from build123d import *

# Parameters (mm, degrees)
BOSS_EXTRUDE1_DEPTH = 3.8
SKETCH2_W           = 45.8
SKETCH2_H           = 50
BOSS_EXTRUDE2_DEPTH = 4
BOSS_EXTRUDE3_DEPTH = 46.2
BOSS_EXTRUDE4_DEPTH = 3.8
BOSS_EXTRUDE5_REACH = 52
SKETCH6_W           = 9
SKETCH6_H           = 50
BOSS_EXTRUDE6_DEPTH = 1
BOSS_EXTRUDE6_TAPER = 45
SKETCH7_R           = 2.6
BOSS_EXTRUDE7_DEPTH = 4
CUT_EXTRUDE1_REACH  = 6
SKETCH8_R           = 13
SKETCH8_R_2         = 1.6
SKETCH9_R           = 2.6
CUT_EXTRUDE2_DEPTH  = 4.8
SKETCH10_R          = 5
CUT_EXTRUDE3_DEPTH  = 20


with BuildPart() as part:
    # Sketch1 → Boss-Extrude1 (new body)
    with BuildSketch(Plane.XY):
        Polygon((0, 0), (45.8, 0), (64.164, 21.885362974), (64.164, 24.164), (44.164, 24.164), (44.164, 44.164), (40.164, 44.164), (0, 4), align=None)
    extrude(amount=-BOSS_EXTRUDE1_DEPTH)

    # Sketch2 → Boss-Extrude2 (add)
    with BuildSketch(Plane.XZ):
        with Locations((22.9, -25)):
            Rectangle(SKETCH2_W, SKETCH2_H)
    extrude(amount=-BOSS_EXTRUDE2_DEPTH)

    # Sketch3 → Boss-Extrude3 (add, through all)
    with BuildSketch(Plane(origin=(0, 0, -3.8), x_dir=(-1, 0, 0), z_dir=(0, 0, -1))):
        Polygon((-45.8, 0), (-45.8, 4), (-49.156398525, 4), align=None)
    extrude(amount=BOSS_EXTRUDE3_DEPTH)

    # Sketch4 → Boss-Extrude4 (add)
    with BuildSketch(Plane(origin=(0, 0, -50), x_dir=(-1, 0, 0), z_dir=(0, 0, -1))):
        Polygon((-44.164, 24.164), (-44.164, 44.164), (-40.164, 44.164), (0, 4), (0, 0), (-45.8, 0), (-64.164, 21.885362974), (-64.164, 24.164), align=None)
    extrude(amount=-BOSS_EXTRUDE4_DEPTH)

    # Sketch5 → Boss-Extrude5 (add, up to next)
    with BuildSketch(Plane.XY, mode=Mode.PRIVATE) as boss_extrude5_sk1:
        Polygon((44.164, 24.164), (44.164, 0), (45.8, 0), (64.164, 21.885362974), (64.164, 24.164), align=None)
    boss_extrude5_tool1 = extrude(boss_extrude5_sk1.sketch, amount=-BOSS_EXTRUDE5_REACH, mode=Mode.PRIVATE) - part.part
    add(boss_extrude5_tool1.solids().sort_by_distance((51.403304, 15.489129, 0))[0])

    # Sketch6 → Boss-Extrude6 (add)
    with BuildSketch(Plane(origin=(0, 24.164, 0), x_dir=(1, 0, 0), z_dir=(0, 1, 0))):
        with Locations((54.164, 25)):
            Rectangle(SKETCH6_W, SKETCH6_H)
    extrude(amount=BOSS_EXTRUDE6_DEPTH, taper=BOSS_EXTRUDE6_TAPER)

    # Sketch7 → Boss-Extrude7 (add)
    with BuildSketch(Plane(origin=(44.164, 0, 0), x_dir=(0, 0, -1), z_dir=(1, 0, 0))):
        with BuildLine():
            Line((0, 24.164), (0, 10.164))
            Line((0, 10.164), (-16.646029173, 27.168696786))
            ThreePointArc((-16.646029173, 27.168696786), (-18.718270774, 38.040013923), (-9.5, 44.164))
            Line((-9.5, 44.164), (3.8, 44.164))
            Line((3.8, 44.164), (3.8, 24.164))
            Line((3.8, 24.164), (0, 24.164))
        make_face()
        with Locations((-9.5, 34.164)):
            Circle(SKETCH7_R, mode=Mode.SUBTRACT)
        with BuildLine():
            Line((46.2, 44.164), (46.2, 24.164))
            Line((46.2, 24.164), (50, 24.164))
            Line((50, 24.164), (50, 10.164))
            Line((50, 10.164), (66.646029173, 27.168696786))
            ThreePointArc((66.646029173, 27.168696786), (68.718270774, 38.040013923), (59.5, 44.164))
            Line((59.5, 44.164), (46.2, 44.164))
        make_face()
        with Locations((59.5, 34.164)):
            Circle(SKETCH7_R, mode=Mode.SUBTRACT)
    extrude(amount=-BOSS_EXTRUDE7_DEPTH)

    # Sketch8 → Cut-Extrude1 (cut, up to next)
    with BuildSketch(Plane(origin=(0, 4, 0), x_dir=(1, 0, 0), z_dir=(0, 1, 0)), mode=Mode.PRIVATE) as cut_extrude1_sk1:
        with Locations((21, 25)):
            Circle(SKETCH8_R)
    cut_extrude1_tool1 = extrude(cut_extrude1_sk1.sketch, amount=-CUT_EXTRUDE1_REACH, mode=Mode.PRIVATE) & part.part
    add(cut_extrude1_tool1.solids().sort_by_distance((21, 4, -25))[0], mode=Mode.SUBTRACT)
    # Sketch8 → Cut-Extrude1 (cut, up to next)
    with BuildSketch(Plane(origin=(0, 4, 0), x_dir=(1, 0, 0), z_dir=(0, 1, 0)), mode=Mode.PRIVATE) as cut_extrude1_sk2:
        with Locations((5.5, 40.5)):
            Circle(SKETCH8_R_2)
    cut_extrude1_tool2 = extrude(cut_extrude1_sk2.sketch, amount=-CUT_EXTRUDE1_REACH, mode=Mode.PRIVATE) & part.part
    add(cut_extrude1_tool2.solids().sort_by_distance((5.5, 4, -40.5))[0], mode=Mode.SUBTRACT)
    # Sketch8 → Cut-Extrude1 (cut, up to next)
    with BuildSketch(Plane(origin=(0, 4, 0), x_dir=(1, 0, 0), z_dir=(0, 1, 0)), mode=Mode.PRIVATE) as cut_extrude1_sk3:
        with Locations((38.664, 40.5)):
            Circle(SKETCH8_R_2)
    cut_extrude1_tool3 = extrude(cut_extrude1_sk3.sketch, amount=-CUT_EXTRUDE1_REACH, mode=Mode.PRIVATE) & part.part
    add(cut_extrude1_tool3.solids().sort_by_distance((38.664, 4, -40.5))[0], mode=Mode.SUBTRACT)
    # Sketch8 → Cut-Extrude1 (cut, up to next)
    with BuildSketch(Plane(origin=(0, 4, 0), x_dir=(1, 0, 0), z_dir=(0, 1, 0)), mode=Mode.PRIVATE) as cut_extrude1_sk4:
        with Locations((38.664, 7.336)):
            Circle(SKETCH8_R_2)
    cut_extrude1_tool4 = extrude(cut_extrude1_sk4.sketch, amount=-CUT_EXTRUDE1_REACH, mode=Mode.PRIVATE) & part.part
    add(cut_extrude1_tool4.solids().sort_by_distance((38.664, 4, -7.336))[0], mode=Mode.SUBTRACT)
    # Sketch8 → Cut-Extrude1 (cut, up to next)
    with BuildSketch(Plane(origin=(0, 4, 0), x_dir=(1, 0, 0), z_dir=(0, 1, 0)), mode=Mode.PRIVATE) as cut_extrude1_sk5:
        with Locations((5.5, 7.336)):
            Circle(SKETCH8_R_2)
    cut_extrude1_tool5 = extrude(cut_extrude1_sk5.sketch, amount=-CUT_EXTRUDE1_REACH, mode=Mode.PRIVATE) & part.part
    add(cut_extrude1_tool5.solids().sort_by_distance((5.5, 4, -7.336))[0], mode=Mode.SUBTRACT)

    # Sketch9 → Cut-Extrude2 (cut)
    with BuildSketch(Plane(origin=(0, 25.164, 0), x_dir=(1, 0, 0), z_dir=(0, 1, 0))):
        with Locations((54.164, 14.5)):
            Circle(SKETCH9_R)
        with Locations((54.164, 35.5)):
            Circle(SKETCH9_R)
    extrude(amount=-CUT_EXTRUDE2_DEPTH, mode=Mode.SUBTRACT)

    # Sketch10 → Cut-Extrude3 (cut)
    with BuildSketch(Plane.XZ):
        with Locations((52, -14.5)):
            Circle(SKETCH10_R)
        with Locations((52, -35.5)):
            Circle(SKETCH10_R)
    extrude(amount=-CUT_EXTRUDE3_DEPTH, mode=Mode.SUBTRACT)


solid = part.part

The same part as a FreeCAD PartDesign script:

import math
import FreeCAD as App
import Part
import Sketcher
from FreeCAD import Vector
Q = App.Units.Quantity


def add_polygon(sketch, points):
    """Adds a closed chain of lines whose ends are joined by coincident constraints."""
    first, n = sketch.GeometryCount, len(points)
    for a, b in zip(points, points[1:] + points[:1]):
        sketch.addGeometry(Part.LineSegment(App.Vector(*a, 0), App.Vector(*b, 0)), False)
    for i in range(n):
        sketch.addConstraint(Sketcher.Constraint("Coincident", first + i, 2, first + (i + 1) % n, 1))

doc = App.newDocument("Part")
body = doc.addObject("PartDesign::Body", "Body")

sketch1 = body.newObject("Sketcher::SketchObject", "Sketch")
sketch1.AttachmentSupport = (doc.getObject("XY_Plane"), [""])
sketch1.MapMode = "FlatFace"
add_polygon(sketch1, [(0, 0), (45.8, 0), (64.2, 21.9), (64.2, 24.2), (44.2, 24.2), (44.2, 44.2), (40.2, 44.2), (0, 4)])
sketch1.addConstraint([
    Sketcher.Constraint("Horizontal", 0),
    Sketcher.Constraint("Vertical", 2),
    Sketcher.Constraint("Horizontal", 3),
    Sketcher.Constraint("Vertical", 4),
    Sketcher.Constraint("Horizontal", 5),
    Sketcher.Constraint("Vertical", 7),
    Sketcher.Constraint("Coincident", 7, 2, -1, 1),
    Sketcher.Constraint("Equal", 3, 4),
    Sketcher.Constraint("Equal", 5, 7),
    Sketcher.Constraint("DistanceX", 3, 2, 3, 1, Q("20 mm")),
    Sketcher.Constraint("DistanceX", 5, 2, 5, 1, Q("4 mm")),
    Sketcher.Constraint("Angle", 1, Q("50 deg")),
    Sketcher.Constraint("Angle", 6, Q("-135 deg")),
    Sketcher.Constraint("DistanceX", 0, 1, 0, 2, Q("45.8 mm")),
    Sketcher.Constraint("DistanceX", -1, 1, 1, 2, Q("64.164 mm")),
])
pad1 = body.newObject("PartDesign::Pad", "Pad")
pad1.Profile = sketch1
pad1.Length = 3.8
pad1.Reversed = True

sketch2 = body.newObject("Sketcher::SketchObject", "Sketch001")
sketch2.AttachmentSupport = (doc.getObject("XZ_Plane"), [""])
sketch2.MapMode = "FlatFace"
add_polygon(sketch2, [(0, 0), (0, -50), (46, -50), (46, 0)])
sketch2.addConstraint([
    Sketcher.Constraint("Vertical", 0),
    Sketcher.Constraint("Horizontal", 1),
    Sketcher.Constraint("Vertical", 2),
    Sketcher.Constraint("Horizontal", 3),
    Sketcher.Constraint("Coincident", 3, 2, -1, 1),
    Sketcher.Constraint("DistanceY", 0, 2, 0, 1, Q("50 mm")),
    Sketcher.Constraint("DistanceX", 1, 1, 1, 2, Q("45.8 mm")),
])
pad2 = body.newObject("PartDesign::Pad", "Pad001")
pad2.Profile = sketch2
pad2.Length = 4
pad2.Reversed = True

sketch3 = body.newObject("Sketcher::SketchObject", "Sketch002")
sketch3.AttachmentSupport = (doc.getObject("XY_Plane"), [""])
sketch3.MapMode = "FlatFace"
sketch3.AttachmentOffset = App.Placement(Vector(0, 0, -3.8), App.Rotation())
add_polygon(sketch3, [(45.8, 0), (45.8, 4), (49.2, 4)])
sketch3.addConstraint([
    Sketcher.Constraint("Vertical", 0),
    Sketcher.Constraint("Horizontal", 1),
    Sketcher.Constraint("PointOnObject", 2, 2, -1),
    Sketcher.Constraint("DistanceY", 0, 1, 0, 2, Q("4 mm")),
    Sketcher.Constraint("Angle", 2, Q("-130 deg")),
    Sketcher.Constraint("DistanceX", -1, 1, 0, 2, Q("45.8 mm")),
])
pad3 = body.newObject("PartDesign::Pad", "Pad002")
pad3.Profile = sketch3
pad3.Length = 46.2
pad3.Reversed = True

sketch4 = body.newObject("Sketcher::SketchObject", "Sketch003")
sketch4.AttachmentSupport = (doc.getObject("XY_Plane"), [""])
sketch4.MapMode = "FlatFace"
sketch4.AttachmentOffset = App.Placement(Vector(0, 0, -50), App.Rotation())
add_polygon(sketch4, [(44.2, 44.2), (44.2, 24.2), (64.2, 24.2), (64.2, 21.9), (45.8, 0), (0, 0), (0, 4), (40.2, 44.2)])
sketch4.addConstraint([
    Sketcher.Constraint("Vertical", 0),
    Sketcher.Constraint("Horizontal", 1),
    Sketcher.Constraint("Vertical", 2),
    Sketcher.Constraint("Horizontal", 4),
    Sketcher.Constraint("Vertical", 5),
    Sketcher.Constraint("Horizontal", 7),
    Sketcher.Constraint("Coincident", 4, 2, -1, 1),
    Sketcher.Constraint("Equal", 1, 0),
    Sketcher.Constraint("Equal", 7, 5),
    Sketcher.Constraint("DistanceX", 1, 1, 1, 2, Q("20 mm")),
    Sketcher.Constraint("DistanceX", 7, 1, 7, 2, Q("4 mm")),
    Sketcher.Constraint("Angle", 3, Q("-130 deg")),
    Sketcher.Constraint("Angle", 6, Q("45 deg")),
    Sketcher.Constraint("DistanceX", 4, 2, 4, 1, Q("45.8 mm")),
    Sketcher.Constraint("DistanceX", -1, 1, 0, 2, Q("44.164 mm")),
])
pad4 = body.newObject("PartDesign::Pad", "Pad003")
pad4.Profile = sketch4
pad4.Length = 3.8

sketch5 = body.newObject("Sketcher::SketchObject", "Sketch004")
sketch5.AttachmentSupport = (doc.getObject("XY_Plane"), [""])
sketch5.MapMode = "FlatFace"
add_polygon(sketch5, [(44.2, 24.2), (44.2, 0), (45.8, 0), (64.2, 21.9), (64.2, 24.2)])
sketch5.addConstraint([
    Sketcher.Constraint("Vertical", 0),
    Sketcher.Constraint("Horizontal", 1),
    Sketcher.Constraint("Vertical", 3),
    Sketcher.Constraint("Horizontal", 4),
    Sketcher.Constraint("PointOnObject", 0, 2, -1),
    Sketcher.Constraint("DistanceX", 4, 2, 4, 1, Q("20 mm")),
    Sketcher.Constraint("Angle", 2, Q("50 deg")),
    Sketcher.Constraint("DistanceX", -1, 1, 1, 2, Q("45.8 mm")),
    Sketcher.Constraint("DistanceX", 1, 1, 1, 2, Q("1.636 mm")),
    Sketcher.Constraint("DistanceY", 0, 2, 0, 1, Q("24.164 mm")),
])
pad5 = body.newObject("PartDesign::Pad", "Pad004")
pad5.Profile = sketch5
pad5.Length = 46.2
pad5.Reversed = True

sketch6 = body.newObject("Sketcher::SketchObject", "Sketch005")
sketch6.AttachmentSupport = (doc.getObject("XZ_Plane"), [""])
sketch6.MapMode = "FlatFace"
sketch6.AttachmentOffset = App.Placement(Vector(0, 0, -24.164), App.Rotation())
add_polygon(sketch6, [(50, -50), (50, 0), (59, 0), (59, -50)])
sketch6.addConstraint([
    Sketcher.Constraint("Vertical", 0),
    Sketcher.Constraint("Horizontal", 1),
    Sketcher.Constraint("Vertical", 2),
    Sketcher.Constraint("Horizontal", 3),
    Sketcher.Constraint("PointOnObject", 0, 2, -1),
    Sketcher.Constraint("DistanceX", 1, 1, 1, 2, Q("9 mm")),
    Sketcher.Constraint("DistanceY", 0, 1, 0, 2, Q("50 mm")),
    Sketcher.Constraint("DistanceX", -1, 1, 0, 2, Q("49.664 mm")),
])
pad6 = body.newObject("PartDesign::Pad", "Pad005")
pad6.Profile = sketch6
pad6.Length = 1
pad6.Reversed = True
pad6.TaperAngle = -45

sketch7 = body.newObject("Sketcher::SketchObject", "Sketch006")
sketch7.AttachmentSupport = (doc.getObject("YZ_Plane"), [""])
sketch7.MapMode = "FlatFace"
sketch7.AttachmentOffset = App.Placement(Vector(0, 0, 44.164), App.Rotation())
sketch7.addGeometry([
    Part.LineSegment(Vector(10.2, 0, 0), Vector(24.2, 0, 0)),
    Part.LineSegment(Vector(24.2, 0, 0), Vector(24.2, -3.8, 0)),
    Part.LineSegment(Vector(24.2, -3.8, 0), Vector(44.2, -3.8, 0)),
    Part.LineSegment(Vector(44.2, -3.8, 0), Vector(44.2, 9.5, 0)),
    Part.ArcOfCircle(Part.Circle(Vector(34.2, 9.5, 0), Vector(0, 0, 1), 10), math.radians(0), math.radians(134)),
    Part.LineSegment(Vector(27.2, 16.6, 0), Vector(10.2, 0, 0)),
    Part.Circle(Vector(34.2, 9.5, 0), Vector(0, 0, 1), 2.6),
    Part.LineSegment(Vector(44.2, -46.2, 0), Vector(24.2, -46.2, 0)),
    Part.LineSegment(Vector(24.2, -46.2, 0), Vector(24.2, -50, 0)),
    Part.LineSegment(Vector(24.2, -50, 0), Vector(10.2, -50, 0)),
    Part.LineSegment(Vector(10.2, -50, 0), Vector(27.2, -66.6, 0)),
    Part.ArcOfCircle(Part.Circle(Vector(34.2, -59.5, 0), Vector(0, 0, 1), 10), math.radians(-134), math.radians(0)),
    Part.LineSegment(Vector(44.2, -59.5, 0), Vector(44.2, -46.2, 0)),
    Part.Circle(Vector(34.2, -59.5, 0), Vector(0, 0, 1), 2.6),
], False)
sketch7.addConstraint([
    Sketcher.Constraint("Coincident", 0, 2, 1, 1),
    Sketcher.Constraint("Coincident", 1, 2, 2, 1),
    Sketcher.Constraint("Coincident", 2, 2, 3, 1),
    Sketcher.Constraint("Tangent", 3, 2, 4, 1),
    Sketcher.Constraint("Tangent", 4, 2, 5, 1),
    Sketcher.Constraint("Coincident", 5, 2, 0, 1),
    Sketcher.Constraint("Coincident", 7, 2, 8, 1),
    Sketcher.Constraint("Coincident", 8, 2, 9, 1),
    Sketcher.Constraint("Coincident", 9, 2, 10, 1),
    Sketcher.Constraint("Tangent", 10, 2, 11, 1),
    Sketcher.Constraint("Tangent", 11, 2, 12, 1),
    Sketcher.Constraint("Coincident", 12, 2, 7, 1),
    Sketcher.Constraint("Horizontal", 0),
    Sketcher.Constraint("Vertical", 1),
    Sketcher.Constraint("Horizontal", 2),
    Sketcher.Constraint("Vertical", 3),
    Sketcher.Constraint("Horizontal", 7),
    Sketcher.Constraint("Vertical", 8),
    Sketcher.Constraint("Horizontal", 9),
    Sketcher.Constraint("Vertical", 12),
    Sketcher.Constraint("Coincident", 6, 3, 4, 3),
    Sketcher.Constraint("Coincident", 13, 3, 11, 3),
    Sketcher.Constraint("Equal", 4, 11),
    Sketcher.Constraint("Equal", 6, 13),
    Sketcher.Constraint("PointOnObject", 0, 2, -1),
    Sketcher.Constraint("Vertical", 6, 3, 11, 3),
    Sketcher.Constraint("Vertical", 1, 2, 7, 2),
    Sketcher.Constraint("Vertical", 5, 2, 9, 2),
    Sketcher.Constraint("Vertical", 4, 2, 10, 2),
    Sketcher.Constraint("Equal", 1, 8),
    Sketcher.Constraint("Radius", 4, Q("10 mm")),
    Sketcher.Constraint("Diameter", 6, Q("5.2 mm")),
    Sketcher.Constraint("DistanceX", 0, 1, 0, 2, Q("14 mm")),
    Sketcher.Constraint("DistanceX", 2, 1, 2, 2, Q("20 mm")),
    Sketcher.Constraint("DistanceY", 1, 2, 1, 1, Q("3.8 mm")),
    Sketcher.Constraint("DistanceY", 3, 1, 3, 2, Q("13.3 mm")),
    Sketcher.Constraint("DistanceY", 8, 2, -1, 1, Q("50 mm")),
    Sketcher.Constraint("DistanceX", -1, 1, 4, 3, Q("34.164 mm")),
])
pad7 = body.newObject("PartDesign::Pad", "Pad006")
pad7.Profile = sketch7
pad7.Length = 4
pad7.Reversed = True

sketch8 = body.newObject("Sketcher::SketchObject", "Sketch007")
sketch8.AttachmentSupport = (doc.getObject("XZ_Plane"), [""])
sketch8.MapMode = "FlatFace"
sketch8.AttachmentOffset = App.Placement(Vector(0, 0, -4), App.Rotation())
sketch8.addGeometry(Part.Circle(Vector(21, -25, 0), Vector(0, 0, 1), 13), False)
sketch8.addConstraint([
    Sketcher.Constraint("Diameter", 0, Q("26 mm")),
    Sketcher.Constraint("DistanceX", -1, 1, 0, 3, Q("21 mm")),
    Sketcher.Constraint("DistanceY", 0, 3, -1, 1, Q("25 mm")),
])
pocket1 = body.newObject("PartDesign::Pocket", "Pocket")
pocket1.Profile = sketch8
pocket1.Type = "UpToFirst"
pocket1.Reversed = True

sketch9 = body.newObject("Sketcher::SketchObject", "Sketch008")
sketch9.AttachmentSupport = (doc.getObject("XZ_Plane"), [""])
sketch9.MapMode = "FlatFace"
sketch9.AttachmentOffset = App.Placement(Vector(0, 0, -4), App.Rotation())
sketch9.addGeometry(Part.Circle(Vector(5.5, -40.5, 0), Vector(0, 0, 1), 1.6), False)
sketch9.addConstraint([
    Sketcher.Constraint("Diameter", 0, Q("3.2 mm")),
    Sketcher.Constraint("DistanceX", -1, 1, 0, 3, Q("5.5 mm")),
    Sketcher.Constraint("DistanceY", 0, 3, -1, 1, Q("40.5 mm")),
])
pocket2 = body.newObject("PartDesign::Pocket", "Pocket001")
pocket2.Profile = sketch9
pocket2.Type = "UpToFirst"
pocket2.Reversed = True

sketch10 = body.newObject("Sketcher::SketchObject", "Sketch009")
sketch10.AttachmentSupport = (doc.getObject("XZ_Plane"), [""])
sketch10.MapMode = "FlatFace"
sketch10.AttachmentOffset = App.Placement(Vector(0, 0, -4), App.Rotation())
sketch10.addGeometry(Part.Circle(Vector(38.7, -40.5, 0), Vector(0, 0, 1), 1.6), False)
sketch10.addConstraint([
    Sketcher.Constraint("Diameter", 0, Q("3.2 mm")),
    Sketcher.Constraint("DistanceY", 0, 3, -1, 1, Q("40.5 mm")),
    Sketcher.Constraint("DistanceX", -1, 1, 0, 3, Q("38.664 mm")),
])
pocket3 = body.newObject("PartDesign::Pocket", "Pocket002")
pocket3.Profile = sketch10
pocket3.Type = "UpToFirst"
pocket3.Reversed = True

sketch11 = body.newObject("Sketcher::SketchObject", "Sketch010")
sketch11.AttachmentSupport = (doc.getObject("XZ_Plane"), [""])
sketch11.MapMode = "FlatFace"
sketch11.AttachmentOffset = App.Placement(Vector(0, 0, -4), App.Rotation())
sketch11.addGeometry(Part.Circle(Vector(38.7, -7.3, 0), Vector(0, 0, 1), 1.6), False)
sketch11.addConstraint([
    Sketcher.Constraint("Diameter", 0, Q("3.2 mm")),
    Sketcher.Constraint("DistanceX", -1, 1, 0, 3, Q("38.664 mm")),
    Sketcher.Constraint("DistanceY", 0, 3, -1, 1, Q("7.336 mm")),
])
pocket4 = body.newObject("PartDesign::Pocket", "Pocket003")
pocket4.Profile = sketch11
pocket4.Type = "UpToFirst"
pocket4.Reversed = True

sketch12 = body.newObject("Sketcher::SketchObject", "Sketch011")
sketch12.AttachmentSupport = (doc.getObject("XZ_Plane"), [""])
sketch12.MapMode = "FlatFace"
sketch12.AttachmentOffset = App.Placement(Vector(0, 0, -4), App.Rotation())
sketch12.addGeometry(Part.Circle(Vector(5.5, -7.3, 0), Vector(0, 0, 1), 1.6), False)
sketch12.addConstraint([
    Sketcher.Constraint("Diameter", 0, Q("3.2 mm")),
    Sketcher.Constraint("DistanceX", -1, 1, 0, 3, Q("5.5 mm")),
    Sketcher.Constraint("DistanceY", 0, 3, -1, 1, Q("7.336 mm")),
])
pocket5 = body.newObject("PartDesign::Pocket", "Pocket004")
pocket5.Profile = sketch12
pocket5.Type = "UpToFirst"
pocket5.Reversed = True

sketch13 = body.newObject("Sketcher::SketchObject", "Sketch012")
sketch13.AttachmentSupport = (doc.getObject("XZ_Plane"), [""])
sketch13.MapMode = "FlatFace"
sketch13.AttachmentOffset = App.Placement(Vector(0, 0, -25.164), App.Rotation())
sketch13.addGeometry([
    Part.Circle(Vector(54.2, -14.5, 0), Vector(0, 0, 1), 2.6),
    Part.Circle(Vector(54.2, -35.5, 0), Vector(0, 0, 1), 2.6),
], False)
sketch13.addConstraint([
    Sketcher.Constraint("Equal", 0, 1),
    Sketcher.Constraint("Vertical", 0, 3, 1, 3),
    Sketcher.Constraint("Diameter", 0, Q("5.2 mm")),
    Sketcher.Constraint("DistanceY", 1, 3, 0, 3, Q("21 mm")),
    Sketcher.Constraint("DistanceY", 0, 3, -1, 1, Q("14.5 mm")),
    Sketcher.Constraint("DistanceX", -1, 1, 0, 3, Q("54.164 mm")),
])
pocket6 = body.newObject("PartDesign::Pocket", "Pocket005")
pocket6.Profile = sketch13
pocket6.Length = 4.8
pocket6.Reversed = True

sketch14 = body.newObject("Sketcher::SketchObject", "Sketch013")
sketch14.AttachmentSupport = (doc.getObject("XZ_Plane"), [""])
sketch14.MapMode = "FlatFace"
sketch14.addGeometry([
    Part.Circle(Vector(52, -14, 0), Vector(0, 0, 1), 5),
    Part.Circle(Vector(52, -36, 0), Vector(0, 0, 1), 5),
], False)
sketch14.addConstraint([
    Sketcher.Constraint("Equal", 0, 1),
    Sketcher.Constraint("Vertical", 0, 3, 1, 3),
    Sketcher.Constraint("Diameter", 0, Q("10 mm")),
    Sketcher.Constraint("DistanceX", -1, 1, 0, 3, Q("52 mm")),
    Sketcher.Constraint("DistanceY", 1, 3, 0, 3, Q("21 mm")),
    Sketcher.Constraint("DistanceY", 0, 3, -1, 1, Q("14.5 mm")),
])
pocket7 = body.newObject("PartDesign::Pocket", "Pocket006")
pocket7.Profile = sketch14
pocket7.Length = 20

doc.recompute()
